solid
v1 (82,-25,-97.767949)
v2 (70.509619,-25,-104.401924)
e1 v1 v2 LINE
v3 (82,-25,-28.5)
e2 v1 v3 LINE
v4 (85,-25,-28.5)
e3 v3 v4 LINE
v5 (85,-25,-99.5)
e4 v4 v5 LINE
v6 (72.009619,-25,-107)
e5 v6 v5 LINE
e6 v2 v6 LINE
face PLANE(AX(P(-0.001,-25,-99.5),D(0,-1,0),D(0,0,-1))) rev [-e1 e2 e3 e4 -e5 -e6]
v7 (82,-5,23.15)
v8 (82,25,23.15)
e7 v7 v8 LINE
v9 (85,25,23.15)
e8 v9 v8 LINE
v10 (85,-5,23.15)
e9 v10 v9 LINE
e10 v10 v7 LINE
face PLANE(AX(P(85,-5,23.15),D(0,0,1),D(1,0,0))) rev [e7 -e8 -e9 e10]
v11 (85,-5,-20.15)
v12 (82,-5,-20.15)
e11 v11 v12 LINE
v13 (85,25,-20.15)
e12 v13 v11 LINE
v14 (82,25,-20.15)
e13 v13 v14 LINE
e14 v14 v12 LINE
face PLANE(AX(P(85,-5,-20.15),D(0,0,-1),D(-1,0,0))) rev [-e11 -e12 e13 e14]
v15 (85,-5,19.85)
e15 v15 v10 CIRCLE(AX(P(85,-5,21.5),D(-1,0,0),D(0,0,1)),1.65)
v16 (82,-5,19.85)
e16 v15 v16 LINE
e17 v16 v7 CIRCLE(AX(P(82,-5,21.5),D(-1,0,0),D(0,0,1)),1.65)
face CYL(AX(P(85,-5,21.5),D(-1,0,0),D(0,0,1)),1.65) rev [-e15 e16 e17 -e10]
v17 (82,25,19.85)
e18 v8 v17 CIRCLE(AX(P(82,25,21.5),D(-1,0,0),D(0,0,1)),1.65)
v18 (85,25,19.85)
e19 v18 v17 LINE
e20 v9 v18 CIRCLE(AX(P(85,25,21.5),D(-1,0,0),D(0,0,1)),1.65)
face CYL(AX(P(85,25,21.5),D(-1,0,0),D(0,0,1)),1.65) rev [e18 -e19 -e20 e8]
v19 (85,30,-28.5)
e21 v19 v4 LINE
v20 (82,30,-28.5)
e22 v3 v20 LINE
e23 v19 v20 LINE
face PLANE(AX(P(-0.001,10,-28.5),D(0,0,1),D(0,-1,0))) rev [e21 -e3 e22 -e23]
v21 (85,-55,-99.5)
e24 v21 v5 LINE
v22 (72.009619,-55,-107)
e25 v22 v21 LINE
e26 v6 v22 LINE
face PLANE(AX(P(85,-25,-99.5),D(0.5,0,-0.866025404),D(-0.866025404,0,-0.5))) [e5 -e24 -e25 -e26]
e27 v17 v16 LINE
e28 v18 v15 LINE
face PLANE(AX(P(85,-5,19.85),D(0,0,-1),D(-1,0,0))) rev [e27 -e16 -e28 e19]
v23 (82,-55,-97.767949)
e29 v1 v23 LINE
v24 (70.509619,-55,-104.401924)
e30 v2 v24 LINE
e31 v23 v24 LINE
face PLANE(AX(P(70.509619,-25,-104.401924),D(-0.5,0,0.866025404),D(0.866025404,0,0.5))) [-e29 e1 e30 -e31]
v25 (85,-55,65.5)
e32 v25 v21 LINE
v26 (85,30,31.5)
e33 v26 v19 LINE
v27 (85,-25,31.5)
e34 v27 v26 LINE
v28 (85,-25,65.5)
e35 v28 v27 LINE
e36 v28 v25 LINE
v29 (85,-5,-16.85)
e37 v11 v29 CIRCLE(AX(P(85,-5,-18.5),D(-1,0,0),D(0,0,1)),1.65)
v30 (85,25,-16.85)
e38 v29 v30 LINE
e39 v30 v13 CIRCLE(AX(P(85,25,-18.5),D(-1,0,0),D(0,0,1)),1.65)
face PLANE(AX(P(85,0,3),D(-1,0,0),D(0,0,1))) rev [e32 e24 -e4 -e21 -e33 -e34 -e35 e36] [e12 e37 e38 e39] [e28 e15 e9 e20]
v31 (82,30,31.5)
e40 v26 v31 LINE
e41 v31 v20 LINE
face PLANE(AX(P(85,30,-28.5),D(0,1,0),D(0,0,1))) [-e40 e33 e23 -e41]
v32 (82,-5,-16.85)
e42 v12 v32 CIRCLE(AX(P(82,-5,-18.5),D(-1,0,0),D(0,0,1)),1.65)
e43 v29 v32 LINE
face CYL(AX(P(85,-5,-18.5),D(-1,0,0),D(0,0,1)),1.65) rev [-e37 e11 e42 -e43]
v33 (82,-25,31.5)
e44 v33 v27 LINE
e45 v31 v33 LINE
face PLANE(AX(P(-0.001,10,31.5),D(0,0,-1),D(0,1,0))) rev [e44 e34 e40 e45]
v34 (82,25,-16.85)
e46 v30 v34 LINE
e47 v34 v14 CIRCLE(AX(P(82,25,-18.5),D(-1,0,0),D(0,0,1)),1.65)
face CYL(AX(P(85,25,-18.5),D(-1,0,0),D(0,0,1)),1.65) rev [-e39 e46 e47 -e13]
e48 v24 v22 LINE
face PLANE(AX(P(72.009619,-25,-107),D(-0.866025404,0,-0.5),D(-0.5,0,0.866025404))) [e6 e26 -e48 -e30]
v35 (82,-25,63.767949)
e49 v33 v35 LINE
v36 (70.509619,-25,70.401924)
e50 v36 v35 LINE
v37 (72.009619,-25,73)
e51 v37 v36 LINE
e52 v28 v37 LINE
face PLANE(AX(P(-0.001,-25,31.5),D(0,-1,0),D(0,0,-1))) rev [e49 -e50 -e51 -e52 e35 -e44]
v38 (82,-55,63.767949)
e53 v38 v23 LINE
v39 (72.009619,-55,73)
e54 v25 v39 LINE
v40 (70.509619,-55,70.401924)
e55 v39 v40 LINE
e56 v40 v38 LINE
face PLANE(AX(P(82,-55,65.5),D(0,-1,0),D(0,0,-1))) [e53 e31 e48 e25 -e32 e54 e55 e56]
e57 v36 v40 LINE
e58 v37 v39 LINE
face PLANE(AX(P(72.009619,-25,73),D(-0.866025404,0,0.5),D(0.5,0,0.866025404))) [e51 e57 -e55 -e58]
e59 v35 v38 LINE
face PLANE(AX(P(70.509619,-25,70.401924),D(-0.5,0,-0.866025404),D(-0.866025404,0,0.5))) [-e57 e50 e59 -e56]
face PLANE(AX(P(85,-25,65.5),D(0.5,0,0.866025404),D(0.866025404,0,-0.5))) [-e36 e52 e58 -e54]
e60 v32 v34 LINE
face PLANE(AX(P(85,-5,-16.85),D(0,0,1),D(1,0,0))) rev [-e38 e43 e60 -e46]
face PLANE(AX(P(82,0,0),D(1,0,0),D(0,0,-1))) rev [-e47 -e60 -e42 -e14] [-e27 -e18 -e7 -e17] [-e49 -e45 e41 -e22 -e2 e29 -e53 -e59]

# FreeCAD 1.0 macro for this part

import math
import FreeCAD as App
import Part
import Sketcher

V = App.Vector
Q = App.Units.Quantity


def add_polygon(sketch, points):
    """Adds a closed chain of lines whose ends are joined by coincident constraints."""
    first, n = sketch.GeometryCount, len(points)
    for a, b in zip(points, points[1:] + points[:1]):
        sketch.addGeometry(Part.LineSegment(App.Vector(*a, 0), App.Vector(*b, 0)), False)
    for i in range(n):
        sketch.addConstraint(Sketcher.Constraint("Coincident", first + i, 2, first + (i + 1) % n, 1))

doc = App.newDocument("Part")
body = doc.addObject("PartDesign::Body", "Body")

sketch1 = body.newObject("Sketcher::SketchObject", "Sketch")
sketch1.AttachmentSupport = (doc.getObject("XY_Plane"), [""])
sketch1.MapMode = "FlatFace"
add_polygon(sketch1, [(0, 10), (0, 0), (85, 0), (85, 10)])
sketch1.addGeometry(Part.Circle(V(5, 5, 0), V(0, 0, 1), 1), False)
sketch1.addConstraint([
    Sketcher.Constraint("Vertical", 0),
    Sketcher.Constraint("Horizontal", 1),
    Sketcher.Constraint("Vertical", 2),
    Sketcher.Constraint("Horizontal", 3),
    Sketcher.Constraint("Coincident", 0, 2, -1, 1),
    Sketcher.Constraint("Diameter", 4, 2.0),
    Sketcher.Constraint("DistanceX", 1, 1, 1, 2, 85.0),
    Sketcher.Constraint("DistanceY", 0, 2, 0, 1, 10.0),
    Sketcher.Constraint("DistanceX", -1, 1, 4, 3, 5.0),
    Sketcher.Constraint("DistanceY", -1, 1, 4, 3, 5.0),
])
pad1 = body.newObject("PartDesign::Pad", "Pad")
pad1.Profile = sketch1
pad1.Length = 3

sketch2 = body.newObject("Sketcher::SketchObject", "Sketch001")
sketch2.AttachmentSupport = (doc.getObject("YZ_Plane"), [""])
sketch2.MapMode = "FlatFace"
sketch2.AttachmentOffset = App.Placement(V(0, 0, 85), App.Rotation())
add_polygon(sketch2, [(10, 66), (-55, 66), (-55, -100), (10, -100)])
sketch2.addConstraint([
    Sketcher.Constraint("Horizontal", 0),
    Sketcher.Constraint("Vertical", 1),
    Sketcher.Constraint("Horizontal", 2),
    Sketcher.Constraint("Vertical", 3),
    Sketcher.Constraint("DistanceX", 0, 2, 0, 1, 65.0),
    Sketcher.Constraint("DistanceY", 1, 2, 1, 1, 165.0),
    Sketcher.Constraint("DistanceX", 0, 2, -1, 1, 55.0),
    Sketcher.Constraint("DistanceY", -1, 1, 0, 2, 65.5),
])
pad2 = body.newObject("PartDesign::Pad", "Pad001")
pad2.Profile = sketch2
pad2.Length = 3
pad2.Reversed = True

sketch3 = body.newObject("Sketcher::SketchObject", "Sketch002")
sketch3.AttachmentSupport = (doc.getObject("YZ_Plane"), [""])
sketch3.MapMode = "FlatFace"
sketch3.AttachmentOffset = App.Placement(V(0, 0, 85), App.Rotation())
add_polygon(sketch3, [(10, 66), (-25, 66), (-25, 32), (10, 32)])
sketch3.addConstraint([
    Sketcher.Constraint("Horizontal", 0),
    Sketcher.Constraint("Vertical", 1),
    Sketcher.Constraint("Horizontal", 2),
    Sketcher.Constraint("Vertical", 3),
    Sketcher.Constraint("DistanceX", 0, 2, 0, 1, 35.0),
    Sketcher.Constraint("DistanceY", 1, 2, 1, 1, 34.0),
    Sketcher.Constraint("DistanceX", 0, 2, -1, 1, 25.0),
    Sketcher.Constraint("DistanceY", -1, 1, 0, 2, 65.5),
])
pocket1 = body.newObject("PartDesign::Pocket", "Pocket")
pocket1.Profile = sketch3
pocket1.Type = "UpToFirst"

sketch4 = body.newObject("Sketcher::SketchObject", "Sketch003")
sketch4.AttachmentSupport = (doc.getObject("YZ_Plane"), [""])
sketch4.MapMode = "FlatFace"
sketch4.AttachmentOffset = App.Placement(V(0, 0, 85), App.Rotation())
add_polygon(sketch4, [(10, -28), (-25, -28), (-25, -100), (10, -100)])
sketch4.addConstraint([
    Sketcher.Constraint("Horizontal", 0),
    Sketcher.Constraint("Vertical", 1),
    Sketcher.Constraint("Horizontal", 2),
    Sketcher.Constraint("Vertical", 3),
    Sketcher.Constraint("DistanceX", 0, 2, 0, 1, 35.0),
    Sketcher.Constraint("DistanceY", 1, 2, 1, 1, 71.0),
    Sketcher.Constraint("DistanceX", 0, 2, -1, 1, 25.0),
    Sketcher.Constraint("DistanceY", 0, 2, -1, 1, 28.5),
])
pocket2 = body.newObject("PartDesign::Pocket", "Pocket001")
pocket2.Profile = sketch4
pocket2.Type = "UpToFirst"

sketch5 = body.newObject("Sketcher::SketchObject", "Sketch004")
sketch5.AttachmentSupport = (doc.getObject("XZ_Plane"), [""])
sketch5.MapMode = "FlatFace"
sketch5.AttachmentOffset = App.Placement(V(0, 0, -10), App.Rotation())
add_polygon(sketch5, [(82, -28), (64, 0), (82, 0)])
add_polygon(sketch5, [(82, 3), (64, 3), (82, 32)])
sketch5.addConstraint([
    Sketcher.Constraint("Horizontal", 1),
    Sketcher.Constraint("Vertical", 2),
    Sketcher.Constraint("Horizontal", 3),
    Sketcher.Constraint("Vertical", 5),
    Sketcher.Constraint("PointOnObject", 0, 2, -1),
    Sketcher.Constraint("Vertical", 0, 2, 3, 2),
    Sketcher.Constraint("Vertical", 2, 2, 4, 2),
    Sketcher.Constraint("Equal", 2, 5),
    Sketcher.Constraint("DistanceY", 2, 2, 2, 1, 28.5),
    Sketcher.Constraint("DistanceX", -1, 1, 1, 2, 82.0),
    Sketcher.Constraint("DistanceY", -1, 1, 3, 2, 3.0),
    Sketcher.Constraint("DistanceX", 1, 1, 1, 2, 18.292285),
])
pad3 = body.newObject("PartDesign::Pad", "Pad002")
pad3.Profile = sketch5
pad3.Length = 10

sketch6 = body.newObject("Sketcher::SketchObject", "Sketch005")
sketch6.AttachmentSupport = (doc.getObject("XZ_Plane"), [""])
sketch6.MapMode = "FlatFace"
sketch6.AttachmentOffset = App.Placement(V(0, 0, 55), App.Rotation())
add_polygon(sketch6, [(85, 65.5), (72, 73), (70.5, 70.4), (82, 63.8)])
add_polygon(sketch6, [(82, -97.8), (70.5, -104.4), (72, -107), (85, -99.5)])
sketch6.addConstraint([
    Sketcher.Constraint("Perpendicular", 0, 1),
    Sketcher.Constraint("Perpendicular", 1, 2),
    Sketcher.Constraint("Parallel", 3, 4),
    Sketcher.Constraint("Perpendicular", 4, 5),
    Sketcher.Constraint("Perpendicular", 5, 6),
    Sketcher.Constraint("Parallel", 2, 7),
    Sketcher.Constraint("Vertical", 1, 2, 4, 2),
    Sketcher.Constraint("Vertical", 0, 2, 5, 2),
    Sketcher.Constraint("Vertical", 3, 2, 6, 2),
    Sketcher.Constraint("Vertical", 2, 2, 7, 2),
    Sketcher.Constraint("Angle", 0, Q("150 deg")),
    Sketcher.Constraint("Distance", 0, 15.0),
    Sketcher.Constraint("Distance", 1, 3.0),
    Sketcher.Constraint("DistanceY", -1, 1, 0, 2, 73.0),
    Sketcher.Constraint("DistanceX", -1, 1, 2, 2, 82.0),
    Sketcher.Constraint("DistanceY", 5, 2, -1, 1, 107.0),
])
pad4 = body.newObject("PartDesign::Pad", "Pad003")
pad4.Profile = sketch6
pad4.Length = 30
pad4.Reversed = True

sketch7 = body.newObject("Sketcher::SketchObject", "Sketch006")
sketch7.AttachmentSupport = (doc.getObject("YZ_Plane"), [""])
sketch7.MapMode = "FlatFace"
sketch7.AttachmentOffset = App.Placement(V(0, 0, 85), App.Rotation())
sketch7.addGeometry(Part.Circle(V(5, 21.5, 0), V(0, 0, 1), 1.6), False)
sketch7.addConstraint([
    Sketcher.Constraint("Diameter", 0, 3.3),
    Sketcher.Constraint("DistanceX", -1, 1, 0, 3, 5.0),
    Sketcher.Constraint("DistanceY", -1, 1, 0, 3, 21.5),
])
pocket3 = body.newObject("PartDesign::Pocket", "Pocket002")
pocket3.Profile = sketch7
pocket3.Type = "UpToFirst"

sketch8 = body.newObject("Sketcher::SketchObject", "Sketch007")
sketch8.AttachmentSupport = (doc.getObject("YZ_Plane"), [""])
sketch8.MapMode = "FlatFace"
sketch8.AttachmentOffset = App.Placement(V(0, 0, 85), App.Rotation())
sketch8.addGeometry(Part.Circle(V(5, -18.5, 0), V(0, 0, 1), 1.6), False)
sketch8.addConstraint([
    Sketcher.Constraint("Diameter", 0, 3.3),
    Sketcher.Constraint("DistanceX", -1, 1, 0, 3, 5.0),
    Sketcher.Constraint("DistanceY", 0, 3, -1, 1, 18.5),
])
pocket4 = body.newObject("PartDesign::Pocket", "Pocket003")
pocket4.Profile = sketch8
pocket4.Type = "UpToFirst"

sketch9 = body.newObject("Sketcher::SketchObject", "Sketch008")
sketch9.AttachmentSupport = (doc.getObject("YZ_Plane"), [""])
sketch9.MapMode = "FlatFace"
sketch9.AttachmentOffset = App.Placement(V(0, 0, 85), App.Rotation())
sketch9.addGeometry([
    Part.Circle(V(5, 21.5, 0), V(0, 0, 1), 1.6),
    Part.Circle(V(5, -18.5, 0), V(0, 0, 1), 1.6),
], False)
sketch9.addConstraint([
    Sketcher.Constraint("Equal", 0, 1),
    Sketcher.Constraint("Vertical", 0, 3, 1, 3),
    Sketcher.Constraint("Diameter", 0, 3.3),
    Sketcher.Constraint("DistanceX", -1, 1, 0, 3, 5.0),
    Sketcher.Constraint("DistanceY", 1, 3, 0, 3, 40.0),
    Sketcher.Constraint("DistanceY", -1, 1, 0, 3, 21.5),
])
pocket5 = body.newObject("PartDesign::Pocket", "Pocket004")
pocket5.Profile = sketch9
pocket5.Length = 1
pocket5.Reversed = True

sketch10 = body.newObject("Sketcher::SketchObject", "Sketch009")
sketch10.AttachmentSupport = (doc.getObject("YZ_Plane"), [""])
sketch10.MapMode = "FlatFace"
sketch10.AttachmentOffset = App.Placement(V(0, 0, 72), App.Rotation())
add_polygon(sketch10, [(7.8, -16.9), (7.8, -20.1), (5, -21.8), (2.1, -20.1), (2.1, -16.9), (5, -15.2)])
add_polygon(sketch10, [(7.8, 23.1), (7.8, 19.9), (5, 18.2), (2.1, 19.9), (2.1, 23.1), (5, 24.8)])
sketch10.addConstraint([
    Sketcher.Constraint("Vertical", 0),
    Sketcher.Constraint("Vertical", 3),
    Sketcher.Constraint("Vertical", 6),
    Sketcher.Constraint("Vertical", 9),
    Sketcher.Constraint("Parallel", 1, 4),
    Sketcher.Constraint("Parallel", 2, 5),
    Sketcher.Constraint("Parallel", 4, 7),
    Sketcher.Constraint("Parallel", 5, 8),
    Sketcher.Constraint("Parallel", 7, 10),
    Sketcher.Constraint("Parallel", 8, 11),
    Sketcher.Constraint("Horizontal", 0, 2, 2, 2),
    Sketcher.Constraint("Horizontal", 3, 2, 5, 2),
    Sketcher.Constraint("Horizontal", 6, 2, 8, 2),
    Sketcher.Constraint("Horizontal", 9, 2, 11, 2),
    Sketcher.Constraint("Vertical", 1, 2, 4, 2),
    Sketcher.Constraint("Vertical", 5, 2, 6, 2),
    Sketcher.Constraint("Vertical", 4, 2, 7, 2),
    Sketcher.Constraint("Equal", 3, 6),
    Sketcher.Constraint("Angle", 1, Q("-150 deg")),
    Sketcher.Constraint("DistanceX", -1, 1, 1, 2, 5.0),
    Sketcher.Constraint("DistanceY", 0, 2, 6, 2, 40.0),
    Sketcher.Constraint("DistanceX", 2, 2, 0, 2, 5.7),
    Sketcher.Constraint("DistanceY", 0, 2, 0, 1, 3.290897),
    Sketcher.Constraint("DistanceY", 0, 2, -1, 1, 20.145448),
])
pocket6 = body.newObject("PartDesign::Pocket", "Pocket005")
pocket6.Profile = sketch10
pocket6.Length = 8
pocket6.Reversed = True

sketch11 = body.newObject("Sketcher::SketchObject", "Sketch010")
sketch11.AttachmentSupport = (doc.getObject("XZ_Plane"), [""])
sketch11.MapMode = "FlatFace"
sketch11.AttachmentOffset = App.Placement(V(0, 0, -10), App.Rotation())
add_polygon(sketch11, [(-13, -45), (-13, 41), (82, 41), (82, -45)])
sketch11.addConstraint([
    Sketcher.Constraint("Vertical", 0),
    Sketcher.Constraint("Horizontal", 1),
    Sketcher.Constraint("Vertical", 2),
    Sketcher.Constraint("Horizontal", 3),
    Sketcher.Constraint("DistanceX", -1, 1, 1, 2, 82.0),
    Sketcher.Constraint("DistanceX", 1, 1, 1, 2, 95.226935),
    Sketcher.Constraint("DistanceY", 0, 1, 0, 2, 85.849602),
    Sketcher.Constraint("DistanceY", -1, 1, 0, 2, 40.684908),
])
pocket7 = body.newObject("PartDesign::Pocket", "Pocket006")
pocket7.Profile = sketch11
pocket7.Type = "ThroughAll"
pocket7.Reversed = True

sketch12 = body.newObject("Sketcher::SketchObject", "Sketch011")
sketch12.AttachmentSupport = (doc.getObject("YZ_Plane"), [""])
sketch12.MapMode = "FlatFace"
sketch12.AttachmentOffset = App.Placement(V(0, 0, 82), App.Rotation())
add_polygon(sketch12, [(30, -28), (10, -28), (10, 32), (30, 32)])
sketch12.addConstraint([
    Sketcher.Constraint("Horizontal", 0),
    Sketcher.Constraint("Vertical", 1),
    Sketcher.Constraint("Horizontal", 2),
    Sketcher.Constraint("Vertical", 3),
    Sketcher.Constraint("DistanceX", 0, 2, 0, 1, 20.0),
    Sketcher.Constraint("DistanceY", 1, 1, 1, 2, 60.0),
    Sketcher.Constraint("DistanceX", -1, 1, 0, 2, 10.0),
    Sketcher.Constraint("DistanceY", 0, 2, -1, 1, 28.5),
])
pad5 = body.newObject("PartDesign::Pad", "Pad004")
pad5.Profile = sketch12
pad5.Length = 3

sketch13 = body.newObject("Sketcher::SketchObject", "Sketch012")
sketch13.AttachmentSupport = (doc.getObject("YZ_Plane"), [""])
sketch13.MapMode = "FlatFace"
sketch13.AttachmentOffset = App.Placement(V(0, 0, 82), App.Rotation())
sketch13.addGeometry([
    Part.LineSegment(V(25, -20.1, 0), V(-5, -20.1, 0)),
    Part.ArcOfCircle(Part.Circle(V(-5, -18.5, 0), V(0, 0, 1), 1.6), math.radians(90), math.radians(270)),
    Part.LineSegment(V(-5, -16.9, 0), V(25, -16.9, 0)),
    Part.ArcOfCircle(Part.Circle(V(25, -18.5, 0), V(0, 0, 1), 1.6), math.radians(-90), math.radians(90)),
    Part.LineSegment(V(25, 19.9, 0), V(-5, 19.9, 0)),
    Part.ArcOfCircle(Part.Circle(V(-5, 21.5, 0), V(0, 0, 1), 1.6), math.radians(90), math.radians(270)),
    Part.LineSegment(V(-5, 23.1, 0), V(25, 23.1, 0)),
    Part.ArcOfCircle(Part.Circle(V(25, 21.5, 0), V(0, 0, 1), 1.6), math.radians(-90), math.radians(90)),
], False)
sketch13.addConstraint([
    Sketcher.Constraint("Tangent", 0, 2, 1, 2),
    Sketcher.Constraint("Tangent", 1, 1, 2, 1),
    Sketcher.Constraint("Tangent", 2, 2, 3, 2),
    Sketcher.Constraint("Tangent", 3, 1, 0, 1),
    Sketcher.Constraint("Tangent", 4, 2, 5, 2),
    Sketcher.Constraint("Tangent", 5, 1, 6, 1),
    Sketcher.Constraint("Tangent", 6, 2, 7, 2),
    Sketcher.Constraint("Tangent", 7, 1, 4, 1),
    Sketcher.Constraint("Horizontal", 0),
    Sketcher.Constraint("Horizontal", 2),
    Sketcher.Constraint("Horizontal", 4),
    Sketcher.Constraint("Horizontal", 6),
    Sketcher.Constraint("Equal", 3, 5),
    Sketcher.Constraint("Vertical", 1, 3, 5, 3),
    Sketcher.Constraint("Vertical", 3, 3, 7, 3),
    Sketcher.Constraint("DistanceX", 0, 2, 0, 1, 30.0),
    Sketcher.Constraint("Radius", 1, 1.65),
    Sketcher.Constraint("DistanceX", 1, 3, -1, 1, 5.0),
    Sketcher.Constraint("DistanceY", 1, 3, 5, 3, 40.0),
    Sketcher.Constraint("DistanceY", 1, 3, -1, 1, 18.5),
])
pocket8 = body.newObject("PartDesign::Pocket", "Pocket007")
pocket8.Profile = sketch13
pocket8.Length = 3
pocket8.Reversed = True

doc.recompute()
